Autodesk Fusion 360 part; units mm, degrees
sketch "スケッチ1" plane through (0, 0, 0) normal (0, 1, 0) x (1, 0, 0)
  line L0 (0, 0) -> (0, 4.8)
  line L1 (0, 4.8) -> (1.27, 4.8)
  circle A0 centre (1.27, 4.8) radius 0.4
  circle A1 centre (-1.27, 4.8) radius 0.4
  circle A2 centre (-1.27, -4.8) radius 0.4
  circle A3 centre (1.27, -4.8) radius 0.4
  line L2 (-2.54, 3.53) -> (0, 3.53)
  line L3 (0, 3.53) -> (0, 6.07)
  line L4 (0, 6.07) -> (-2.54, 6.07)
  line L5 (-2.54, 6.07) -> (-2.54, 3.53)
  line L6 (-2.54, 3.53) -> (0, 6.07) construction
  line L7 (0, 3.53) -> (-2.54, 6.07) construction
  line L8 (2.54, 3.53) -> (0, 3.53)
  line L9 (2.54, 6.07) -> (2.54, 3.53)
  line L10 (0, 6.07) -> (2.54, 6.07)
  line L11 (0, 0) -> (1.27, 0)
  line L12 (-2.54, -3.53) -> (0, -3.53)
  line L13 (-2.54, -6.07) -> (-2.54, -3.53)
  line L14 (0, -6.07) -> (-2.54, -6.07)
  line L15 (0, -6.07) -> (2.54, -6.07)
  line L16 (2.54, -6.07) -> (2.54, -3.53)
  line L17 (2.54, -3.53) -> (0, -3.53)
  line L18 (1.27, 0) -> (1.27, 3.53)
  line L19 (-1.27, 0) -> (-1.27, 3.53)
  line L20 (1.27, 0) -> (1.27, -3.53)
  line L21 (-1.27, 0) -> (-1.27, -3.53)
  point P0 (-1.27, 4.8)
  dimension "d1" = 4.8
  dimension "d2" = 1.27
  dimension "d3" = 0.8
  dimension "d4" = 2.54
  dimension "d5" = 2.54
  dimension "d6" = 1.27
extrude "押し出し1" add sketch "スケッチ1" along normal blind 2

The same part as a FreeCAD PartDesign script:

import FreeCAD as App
import Part
import Sketcher
Q = App.Units.Quantity


def add_polygon(sketch, points):
    """Adds a closed chain of lines whose ends are joined by coincident constraints."""
    first, n = sketch.GeometryCount, len(points)
    for a, b in zip(points, points[1:] + points[:1]):
        sketch.addGeometry(Part.LineSegment(App.Vector(*a, 0), App.Vector(*b, 0)), False)
    for i in range(n):
        sketch.addConstraint(Sketcher.Constraint("Coincident", first + i, 2, first + (i + 1) % n, 1))

doc = App.newDocument("Part")
body = doc.addObject("PartDesign::Body", "Body")

# Sketch on XZ plane
sketch1 = body.newObject("Sketcher::SketchObject", "Sketch")
sketch1.AttachmentSupport = (doc.getObject("XZ_Plane"), [""])
sketch1.MapMode = "FlatFace"
add_polygon(sketch1, [(1.27, 3.53), (1.27, -3.53), (2.54, -3.53), (2.54, -6.07), (-2.54, -6.07), (-2.54, -3.53), (-1.27, -3.53), (-1.27, 3.53), (-2.54, 3.53), (-2.54, 6.07), (2.54, 6.07), (2.54, 3.53)])  # lines 0-11
sketch1.addGeometry(Part.Circle(App.Vector(-1.27, 4.8, 0), App.Vector(0, 0, 1), 0.4), False)  # 12
sketch1.addGeometry(Part.Circle(App.Vector(1.27, 4.8, 0), App.Vector(0, 0, 1), 0.4), False)  # 13
sketch1.addGeometry(Part.Circle(App.Vector(-1.27, -4.8, 0), App.Vector(0, 0, 1), 0.4), False)  # 14
sketch1.addGeometry(Part.Circle(App.Vector(1.27, -4.8, 0), App.Vector(0, 0, 1), 0.4), False)  # 15
sketch1.addConstraint(Sketcher.Constraint("Vertical", 0))
sketch1.addConstraint(Sketcher.Constraint("Horizontal", 1))
sketch1.addConstraint(Sketcher.Constraint("Vertical", 2))
sketch1.addConstraint(Sketcher.Constraint("Horizontal", 3))
sketch1.addConstraint(Sketcher.Constraint("Vertical", 4))
sketch1.addConstraint(Sketcher.Constraint("Horizontal", 5))
sketch1.addConstraint(Sketcher.Constraint("Vertical", 6))
sketch1.addConstraint(Sketcher.Constraint("Horizontal", 7))
sketch1.addConstraint(Sketcher.Constraint("Vertical", 8))
sketch1.addConstraint(Sketcher.Constraint("Horizontal", 9))
sketch1.addConstraint(Sketcher.Constraint("Vertical", 10))
sketch1.addConstraint(Sketcher.Constraint("Horizontal", 11))
sketch1.addConstraint(Sketcher.Constraint("Equal", 12, 13))
sketch1.addConstraint(Sketcher.Constraint("Equal", 13, 14))
sketch1.addConstraint(Sketcher.Constraint("Equal", 14, 15))
sketch1.addConstraint(Sketcher.Constraint("Symmetric", 13, 3, 14, 3, -1, 1))
sketch1.addConstraint(Sketcher.Constraint("Symmetric", 12, 3, 15, 3, -1, 1))
sketch1.addConstraint(Sketcher.Constraint("Symmetric", 0, 2, 6, 2, -1, 1))
sketch1.addConstraint(Sketcher.Constraint("Symmetric", 2, 2, 8, 2, -1, 1))
sketch1.addConstraint(Sketcher.Constraint("Symmetric", 4, 2, 10, 2, -1, 1))
sketch1.addConstraint(Sketcher.Constraint("Symmetric", 12, 3, 13, 3, -2))
sketch1.addConstraint(Sketcher.Constraint("Symmetric", 1, 2, 4, 2, -2))
sketch1.addConstraint(Sketcher.Constraint("Vertical", 15, 3, 0, 2))
sketch1.addConstraint(Sketcher.Constraint("DistanceY", 2, 2, 2, 1, Q("0.1 in")))
sketch1.addConstraint(Sketcher.Constraint("Diameter", 12, Q("0.0315 in")))
sketch1.addConstraint(Sketcher.Constraint("DistanceX", 1, 1, 1, 2, Q("0.05 in")))
sketch1.addConstraint(Sketcher.Constraint("DistanceX", -1, 1, 1, 2, Q("0.1 in")))
sketch1.addConstraint(Sketcher.Constraint("DistanceY", 15, 3, 0, 2, Q("0.05 in")))
sketch1.addConstraint(Sketcher.Constraint("DistanceY", -1, 1, 12, 3, Q("4.8 mm")))
pad1 = body.newObject("PartDesign::Pad", "Pad")
pad1.Profile = sketch1
pad1.Length = 2
pad1.Reversed = True

doc.recompute()
